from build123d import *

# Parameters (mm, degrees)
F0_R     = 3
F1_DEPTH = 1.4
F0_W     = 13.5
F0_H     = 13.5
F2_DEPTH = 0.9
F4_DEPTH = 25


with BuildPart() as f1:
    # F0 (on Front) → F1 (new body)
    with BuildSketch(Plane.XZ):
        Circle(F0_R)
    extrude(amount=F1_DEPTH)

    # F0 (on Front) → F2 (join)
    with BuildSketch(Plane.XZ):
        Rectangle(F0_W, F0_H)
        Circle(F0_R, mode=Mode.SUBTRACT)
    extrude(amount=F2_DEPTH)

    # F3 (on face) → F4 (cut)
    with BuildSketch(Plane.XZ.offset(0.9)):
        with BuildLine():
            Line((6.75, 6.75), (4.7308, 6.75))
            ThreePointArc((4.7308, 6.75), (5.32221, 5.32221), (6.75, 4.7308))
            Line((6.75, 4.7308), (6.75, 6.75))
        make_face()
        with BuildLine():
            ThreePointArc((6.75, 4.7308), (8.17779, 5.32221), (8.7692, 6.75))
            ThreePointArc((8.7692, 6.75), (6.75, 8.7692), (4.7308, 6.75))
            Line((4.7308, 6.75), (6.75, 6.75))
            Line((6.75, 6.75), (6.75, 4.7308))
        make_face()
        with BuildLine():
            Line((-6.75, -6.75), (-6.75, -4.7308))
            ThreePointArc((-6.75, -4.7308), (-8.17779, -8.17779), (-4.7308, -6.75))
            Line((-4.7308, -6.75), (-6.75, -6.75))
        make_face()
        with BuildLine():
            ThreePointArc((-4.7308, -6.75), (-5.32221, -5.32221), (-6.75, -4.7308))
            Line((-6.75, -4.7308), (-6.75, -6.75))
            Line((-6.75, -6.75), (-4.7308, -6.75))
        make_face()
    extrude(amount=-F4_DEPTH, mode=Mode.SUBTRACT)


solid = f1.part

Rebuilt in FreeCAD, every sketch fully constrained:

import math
import FreeCAD as App
import Part
import Sketcher
from FreeCAD import Vector
Q = App.Units.Quantity


def add_polygon(sketch, points):
    """Adds a closed chain of lines whose ends are joined by coincident constraints."""
    first, n = sketch.GeometryCount, len(points)
    for a, b in zip(points, points[1:] + points[:1]):
        sketch.addGeometry(Part.LineSegment(App.Vector(*a, 0), App.Vector(*b, 0)), False)
    for i in range(n):
        sketch.addConstraint(Sketcher.Constraint("Coincident", first + i, 2, first + (i + 1) % n, 1))

doc = App.newDocument("Part")
body = doc.addObject("PartDesign::Body", "Body")

# Sketch on XZ plane
sketch1 = body.newObject("Sketcher::SketchObject", "Sketch")
sketch1.AttachmentSupport = (doc.getObject("XZ_Plane"), [""])
sketch1.MapMode = "FlatFace"
sketch1.addGeometry(Part.Circle(Vector(0, 0, 0), Vector(0, 0, 1), 3), False)
sketch1.addConstraint(Sketcher.Constraint("Coincident", 0, 3, -1, 1))
sketch1.addConstraint(Sketcher.Constraint("Diameter", 0, Q("6 mm")))
pad1 = body.newObject("PartDesign::Pad", "Pad")
pad1.Profile = sketch1
pad1.Length = 1.4

# Sketch on XZ plane
sketch2 = body.newObject("Sketcher::SketchObject", "Sketch001")
sketch2.AttachmentSupport = (doc.getObject("XZ_Plane"), [""])
sketch2.MapMode = "FlatFace"
add_polygon(sketch2, [(-6.8, 6.8), (-6.8, -6.8), (6.8, -6.8), (6.8, 6.8)])  # lines 0-3
sketch2.addGeometry(Part.Circle(Vector(0, 0, 0), Vector(0, 0, 1), 3), False)  # 4
sketch2.addConstraint(Sketcher.Constraint("Vertical", 0))
sketch2.addConstraint(Sketcher.Constraint("Horizontal", 1))
sketch2.addConstraint(Sketcher.Constraint("Vertical", 2))
sketch2.addConstraint(Sketcher.Constraint("Horizontal", 3))
sketch2.addConstraint(Sketcher.Constraint("Coincident", 4, 3, -1, 1))
sketch2.addConstraint(Sketcher.Constraint("Symmetric", 0, 2, 2, 2, -1, 1))
sketch2.addConstraint(Sketcher.Constraint("Equal", 3, 0))
sketch2.addConstraint(Sketcher.Constraint("Diameter", 4, Q("6 mm")))
sketch2.addConstraint(Sketcher.Constraint("DistanceX", 1, 1, 1, 2, Q("13.5 mm")))
pad2 = body.newObject("PartDesign::Pad", "Pad001")
pad2.Profile = sketch2
pad2.Length = 0.9

# Sketch on XZ plane
sketch3 = body.newObject("Sketcher::SketchObject", "Sketch002")
sketch3.AttachmentSupport = (doc.getObject("XZ_Plane"), [""])
sketch3.MapMode = "FlatFace"
sketch3.AttachmentOffset = App.Placement(Vector(0, 0, 0.9), App.Rotation())
sketch3.addGeometry(Part.ArcOfCircle(Part.Circle(Vector(6.8, 6.8, 0), Vector(0, 0, 1), 2), math.radians(-180), math.radians(-90)), False)
sketch3.addGeometry(Part.ArcOfCircle(Part.Circle(Vector(6.7, 6.8, 0), Vector(0, 0, 1), 2), math.radians(-90), math.radians(0)), False)
sketch3.addGeometry(Part.ArcOfCircle(Part.Circle(Vector(6.8, 6.8, 0), Vector(0, 0, 1), 2), math.radians(0), math.radians(180)), False)
sketch3.addGeometry(Part.ArcOfCircle(Part.Circle(Vector(-6.7, -6.7, 0), Vector(0, 0, 1), 2), math.radians(90), math.radians(360)), False)
sketch3.addGeometry(Part.ArcOfCircle(Part.Circle(Vector(-6.8, -6.8, 0), Vector(0, 0, 1), 2), math.radians(0), math.radians(90)), False)
sketch3.addConstraint(Sketcher.Constraint("Tangent", 0, 2, 1, 1))
sketch3.addConstraint(Sketcher.Constraint("Tangent", 1, 2, 2, 1))
sketch3.addConstraint(Sketcher.Constraint("Tangent", 2, 2, 0, 1))
sketch3.addConstraint(Sketcher.Constraint("Tangent", 3, 1, 4, 2))
sketch3.addConstraint(Sketcher.Constraint("Coincident", 4, 1, 3, 2))
sketch3.addConstraint(Sketcher.Constraint("Equal", 2, 3))
sketch3.addConstraint(Sketcher.Constraint("Symmetric", 0, 3, 3, 3, -1, 1))
sketch3.addConstraint(Sketcher.Constraint("Horizontal", 2, 3, 1, 2))
sketch3.addConstraint(Sketcher.Constraint("Horizontal", 1, 2, 2, 2))
sketch3.addConstraint(Sketcher.Constraint("Horizontal", 3, 3, 4, 1))
sketch3.addConstraint(Sketcher.Constraint("Vertical", 2, 3, 0, 2))
sketch3.addConstraint(Sketcher.Constraint("Vertical", 4, 3, 3, 1))
sketch3.addConstraint(Sketcher.Constraint("Radius", 0, Q("2.0192 mm")))
sketch3.addConstraint(Sketcher.Constraint("DistanceX", 3, 3, 1, 3, Q("13.5 mm")))
sketch3.addConstraint(Sketcher.Constraint("DistanceY", 3, 3, 1, 3, Q("13.5 mm")))
pocket1 = body.newObject("PartDesign::Pocket", "Pocket")
pocket1.Profile = sketch3
pocket1.Length = 25

doc.recompute()
